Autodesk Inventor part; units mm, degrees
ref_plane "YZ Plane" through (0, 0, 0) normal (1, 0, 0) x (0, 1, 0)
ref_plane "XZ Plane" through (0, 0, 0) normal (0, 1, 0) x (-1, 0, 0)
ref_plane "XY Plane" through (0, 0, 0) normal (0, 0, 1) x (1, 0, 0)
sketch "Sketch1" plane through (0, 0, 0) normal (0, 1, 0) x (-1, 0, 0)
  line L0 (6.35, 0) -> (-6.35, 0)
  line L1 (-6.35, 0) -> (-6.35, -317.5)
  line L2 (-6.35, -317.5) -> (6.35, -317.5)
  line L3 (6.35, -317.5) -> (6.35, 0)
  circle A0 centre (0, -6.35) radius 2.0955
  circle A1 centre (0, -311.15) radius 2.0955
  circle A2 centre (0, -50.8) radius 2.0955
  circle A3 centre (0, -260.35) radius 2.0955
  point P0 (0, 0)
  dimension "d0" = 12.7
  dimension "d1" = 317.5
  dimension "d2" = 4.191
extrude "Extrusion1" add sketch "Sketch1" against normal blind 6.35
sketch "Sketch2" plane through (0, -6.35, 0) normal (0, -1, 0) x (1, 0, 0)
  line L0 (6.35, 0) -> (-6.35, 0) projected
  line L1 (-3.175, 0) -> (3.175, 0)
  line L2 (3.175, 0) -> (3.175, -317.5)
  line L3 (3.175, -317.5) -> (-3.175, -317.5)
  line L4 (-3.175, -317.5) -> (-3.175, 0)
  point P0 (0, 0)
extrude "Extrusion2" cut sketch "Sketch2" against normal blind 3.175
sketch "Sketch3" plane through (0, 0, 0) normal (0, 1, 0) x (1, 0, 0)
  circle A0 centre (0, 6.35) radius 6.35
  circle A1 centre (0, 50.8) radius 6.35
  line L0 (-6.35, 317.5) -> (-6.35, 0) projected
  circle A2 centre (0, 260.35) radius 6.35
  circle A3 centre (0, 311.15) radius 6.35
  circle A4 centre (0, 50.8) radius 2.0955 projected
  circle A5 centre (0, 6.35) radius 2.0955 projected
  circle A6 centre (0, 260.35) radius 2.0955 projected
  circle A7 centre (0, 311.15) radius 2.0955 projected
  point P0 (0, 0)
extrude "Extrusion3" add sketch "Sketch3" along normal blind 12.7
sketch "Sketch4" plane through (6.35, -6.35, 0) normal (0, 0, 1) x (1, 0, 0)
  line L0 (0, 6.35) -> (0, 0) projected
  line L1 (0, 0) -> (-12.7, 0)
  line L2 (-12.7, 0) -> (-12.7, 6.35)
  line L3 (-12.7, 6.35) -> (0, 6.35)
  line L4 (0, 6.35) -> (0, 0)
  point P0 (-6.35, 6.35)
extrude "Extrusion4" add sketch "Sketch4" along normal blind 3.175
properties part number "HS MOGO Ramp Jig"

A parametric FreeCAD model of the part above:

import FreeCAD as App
import Part
import Sketcher
Q = App.Units.Quantity


def add_polygon(sketch, points):
    """Adds a closed chain of lines whose ends are joined by coincident constraints."""
    first, n = sketch.GeometryCount, len(points)
    for a, b in zip(points, points[1:] + points[:1]):
        sketch.addGeometry(Part.LineSegment(App.Vector(*a, 0), App.Vector(*b, 0)), False)
    for i in range(n):
        sketch.addConstraint(Sketcher.Constraint("Coincident", first + i, 2, first + (i + 1) % n, 1))

doc = App.newDocument("Part")
params = doc.addObject("Spreadsheet::Sheet", "Params")
for row, (alias, value) in enumerate([
    ("sketch1_diameter", "0.165 in"),
    ("sketch1_width", "0.5 in"),
    ("sketch1_height", "12.5 in"),
    ("pad1_length", "0.25 in"),
    ("sketch2_height", "12.5 in"),
    ("sketch2_width", "0.25 in"),
    ("pocket1_length", "0.125 in"),
    ("sketch3_diameter", "0.5 in"),
    ("sketch3_diameter2", "0.165 in"),
    ("pad2_length", "0.5 in"),
    ("sketch4_width", "0.5 in"),
    ("sketch4_height", "0.25 in"),
    ("pad3_length", "0.125 in"),
], start=1):
    params.set(f"A{row}", alias)
    params.set(f"B{row}", "=" + value)
    params.setAlias(f"B{row}", alias)

body = doc.addObject("PartDesign::Body", "Body")

# Sketch on XZ plane
sketch1 = body.newObject("Sketcher::SketchObject", "Sketch")
sketch1.AttachmentSupport = (doc.getObject("XZ_Plane"), [""])
sketch1.MapMode = "FlatFace"
add_polygon(sketch1, [(-6.3, -317.5), (-6.3, 0), (6.3, 0), (6.3, -317.5)])  # lines 0-3
sketch1.addGeometry(Part.Circle(App.Vector(0, -311.1, 0), App.Vector(0, 0, 1), 2.1), False)  # 4
sketch1.addGeometry(Part.Circle(App.Vector(0, -260.4, 0), App.Vector(0, 0, 1), 2.1), False)  # 5
sketch1.addGeometry(Part.Circle(App.Vector(0, -50.8, 0), App.Vector(0, 0, 1), 2.1), False)  # 6
sketch1.addGeometry(Part.Circle(App.Vector(0, -6.3, 0), App.Vector(0, 0, 1), 2.1), False)  # 7
sketch1.addConstraint(Sketcher.Constraint("Vertical", 0))
sketch1.addConstraint(Sketcher.Constraint("Horizontal", 1))
sketch1.addConstraint(Sketcher.Constraint("Vertical", 2))
sketch1.addConstraint(Sketcher.Constraint("Horizontal", 3))
sketch1.addConstraint(Sketcher.Constraint("Equal", 4, 5))
sketch1.addConstraint(Sketcher.Constraint("Equal", 5, 6))
sketch1.addConstraint(Sketcher.Constraint("Equal", 6, 7))
sketch1.addConstraint(Sketcher.Constraint("Symmetric", 0, 2, 1, 2, -1, 1))
sketch1.addConstraint(Sketcher.Constraint("PointOnObject", 4, 3, -2))
sketch1.addConstraint(Sketcher.Constraint("PointOnObject", 5, 3, -2))
sketch1.addConstraint(Sketcher.Constraint("PointOnObject", 6, 3, -2))
sketch1.addConstraint(Sketcher.Constraint("PointOnObject", 7, 3, -2))
sketch1.addConstraint(Sketcher.Constraint("Diameter", 4, Q("0.165 in")))
sketch1.addConstraint(Sketcher.Constraint("DistanceX", 1, 1, 1, 2, Q("0.5 in")))
sketch1.addConstraint(Sketcher.Constraint("DistanceY", 0, 1, 0, 2, Q("12.5 in")))
sketch1.addConstraint(Sketcher.Constraint("DistanceY", 6, 3, -1, 1, Q("2 in")))
sketch1.addConstraint(Sketcher.Constraint("DistanceY", 4, 3, 5, 3, Q("2 in")))
sketch1.addConstraint(Sketcher.Constraint("DistanceY", 5, 3, 7, 3, Q("10 in")))
sketch1.addConstraint(Sketcher.Constraint("DistanceY", 4, 3, -1, 1, Q("12.25 in")))
sketch1.setExpression("Constraints[16]", "Params.sketch1_diameter")
sketch1.setExpression("Constraints[17]", "Params.sketch1_width")
sketch1.setExpression("Constraints[18]", "Params.sketch1_height")
pad1 = body.newObject("PartDesign::Pad", "Pad")
pad1.Profile = sketch1
pad1.setExpression("Length", "Params.pad1_length")

# Sketch on XZ plane
sketch2 = body.newObject("Sketcher::SketchObject", "Sketch001")
sketch2.AttachmentSupport = (doc.getObject("XZ_Plane"), [""])
sketch2.MapMode = "FlatFace"
sketch2.AttachmentOffset = App.Placement(App.Vector(0, 0, 0.25 * 25.4), App.Rotation())
add_polygon(sketch2, [(3, -318), (3, 0), (-3, 0), (-3, -318)])  # lines 0-3
sketch2.addConstraint(Sketcher.Constraint("Vertical", 0))
sketch2.addConstraint(Sketcher.Constraint("Horizontal", 1))
sketch2.addConstraint(Sketcher.Constraint("Vertical", 2))
sketch2.addConstraint(Sketcher.Constraint("Horizontal", 3))
sketch2.addConstraint(Sketcher.Constraint("Symmetric", 0, 2, 1, 2, -1, 1))
sketch2.addConstraint(Sketcher.Constraint("DistanceY", 0, 1, 0, 2, Q("12.5 in")))
sketch2.addConstraint(Sketcher.Constraint("DistanceX", 1, 2, 1, 1, Q("0.25 in")))
sketch2.setExpression("Constraints[9]", "Params.sketch2_height")
sketch2.setExpression("Constraints[10]", "Params.sketch2_width")
pocket1 = body.newObject("PartDesign::Pocket", "Pocket")
pocket1.Profile = sketch2
pocket1.setExpression("Length", "Params.pocket1_length")

# Sketch on XZ plane
sketch3 = body.newObject("Sketcher::SketchObject", "Sketch002")
sketch3.AttachmentSupport = (doc.getObject("XZ_Plane"), [""])
sketch3.MapMode = "FlatFace"
sketch3.addGeometry(Part.Circle(App.Vector(0, -6.3, 0), App.Vector(0, 0, 1), 6.3), False)
sketch3.addGeometry(Part.Circle(App.Vector(0, -6.3, 0), App.Vector(0, 0, 1), 2.1), False)
sketch3.addGeometry(Part.Circle(App.Vector(0, -311.1, 0), App.Vector(0, 0, 1), 6.3), False)
sketch3.addGeometry(Part.Circle(App.Vector(0, -311.1, 0), App.Vector(0, 0, 1), 2.1), False)
sketch3.addGeometry(Part.Circle(App.Vector(0, -260.4, 0), App.Vector(0, 0, 1), 6.3), False)
sketch3.addGeometry(Part.Circle(App.Vector(0, -260.4, 0), App.Vector(0, 0, 1), 2.1), False)
sketch3.addGeometry(Part.Circle(App.Vector(0, -50.8, 0), App.Vector(0, 0, 1), 6.3), False)
sketch3.addGeometry(Part.Circle(App.Vector(0, -50.8, 0), App.Vector(0, 0, 1), 2.1), False)
sketch3.addConstraint(Sketcher.Constraint("Coincident", 1, 3, 0, 3))
sketch3.addConstraint(Sketcher.Constraint("Coincident", 3, 3, 2, 3))
sketch3.addConstraint(Sketcher.Constraint("Coincident", 5, 3, 4, 3))
sketch3.addConstraint(Sketcher.Constraint("Coincident", 7, 3, 6, 3))
sketch3.addConstraint(Sketcher.Constraint("Equal", 0, 2))
sketch3.addConstraint(Sketcher.Constraint("Equal", 1, 3))
sketch3.addConstraint(Sketcher.Constraint("Equal", 2, 4))
sketch3.addConstraint(Sketcher.Constraint("Equal", 3, 5))
sketch3.addConstraint(Sketcher.Constraint("Equal", 4, 6))
sketch3.addConstraint(Sketcher.Constraint("Equal", 5, 7))
sketch3.addConstraint(Sketcher.Constraint("PointOnObject", 0, 3, -2))
sketch3.addConstraint(Sketcher.Constraint("PointOnObject", 2, 3, -2))
sketch3.addConstraint(Sketcher.Constraint("PointOnObject", 4, 3, -2))
sketch3.addConstraint(Sketcher.Constraint("PointOnObject", 6, 3, -2))
sketch3.addConstraint(Sketcher.Constraint("Diameter", 0, Q("0.5 in")))
sketch3.addConstraint(Sketcher.Constraint("Diameter", 1, Q("0.165 in")))
sketch3.addConstraint(Sketcher.Constraint("DistanceY", 6, 3, -1, 1, Q("2 in")))
sketch3.addConstraint(Sketcher.Constraint("DistanceY", 2, 3, 0, 3, Q("12 in")))
sketch3.addConstraint(Sketcher.Constraint("DistanceY", 2, 3, 4, 3, Q("2 in")))
sketch3.addConstraint(Sketcher.Constraint("DistanceY", 0, 3, -1, 1, Q("0.25 in")))
sketch3.setExpression("Constraints[14]", "Params.sketch3_diameter")
sketch3.setExpression("Constraints[15]", "Params.sketch3_diameter2")
pad2 = body.newObject("PartDesign::Pad", "Pad001")
pad2.Profile = sketch3
pad2.setExpression("Length", "Params.pad2_length")
pad2.Reversed = True

# Sketch on XY plane
sketch4 = body.newObject("Sketcher::SketchObject", "Sketch003")
sketch4.AttachmentSupport = (doc.getObject("XY_Plane"), [""])
sketch4.MapMode = "FlatFace"
add_polygon(sketch4, [(6, -6), (6, 0), (-6, 0), (-6, -6)])  # lines 0-3
sketch4.addConstraint(Sketcher.Constraint("Vertical", 0))
sketch4.addConstraint(Sketcher.Constraint("Horizontal", 1))
sketch4.addConstraint(Sketcher.Constraint("Vertical", 2))
sketch4.addConstraint(Sketcher.Constraint("Horizontal", 3))
sketch4.addConstraint(Sketcher.Constraint("Symmetric", 0, 2, 1, 2, -1, 1))
sketch4.addConstraint(Sketcher.Constraint("DistanceX", 1, 2, 1, 1, Q("0.5 in")))
sketch4.addConstraint(Sketcher.Constraint("DistanceY", 0, 1, 0, 2, Q("0.25 in")))
sketch4.setExpression("Constraints[9]", "Params.sketch4_width")
sketch4.setExpression("Constraints[10]", "Params.sketch4_height")
pad3 = body.newObject("PartDesign::Pad", "Pad002")
pad3.Profile = sketch4
pad3.setExpression("Length", "Params.pad3_length")

doc.recompute()
